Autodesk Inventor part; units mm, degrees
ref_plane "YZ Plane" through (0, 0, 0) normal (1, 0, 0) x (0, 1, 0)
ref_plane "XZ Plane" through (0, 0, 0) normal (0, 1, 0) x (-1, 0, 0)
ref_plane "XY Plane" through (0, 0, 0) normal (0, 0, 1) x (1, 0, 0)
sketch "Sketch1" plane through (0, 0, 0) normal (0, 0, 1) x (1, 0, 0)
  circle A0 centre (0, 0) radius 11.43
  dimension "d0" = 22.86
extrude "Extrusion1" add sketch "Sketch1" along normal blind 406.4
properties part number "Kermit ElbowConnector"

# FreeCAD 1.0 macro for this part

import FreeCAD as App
import Part
import Sketcher
Q = App.Units.Quantity

doc = App.newDocument("Part")
body = doc.addObject("PartDesign::Body", "Body")

# Sketch on XY plane
sketch1 = body.newObject("Sketcher::SketchObject", "Sketch")
sketch1.AttachmentSupport = (doc.getObject("XY_Plane"), [""])
sketch1.MapMode = "FlatFace"
sketch1.addGeometry(Part.Circle(App.Vector(0, 0, 0), App.Vector(0, 0, 1), 11), False)
sketch1.addConstraint(Sketcher.Constraint("Coincident", 0, 3, -1, 1))
sketch1.addConstraint(Sketcher.Constraint("Diameter", 0, Q("0.9 in")))
pad1 = body.newObject("PartDesign::Pad", "Pad")
pad1.Profile = sketch1
pad1.Length = Q("16 in")

doc.recompute()
